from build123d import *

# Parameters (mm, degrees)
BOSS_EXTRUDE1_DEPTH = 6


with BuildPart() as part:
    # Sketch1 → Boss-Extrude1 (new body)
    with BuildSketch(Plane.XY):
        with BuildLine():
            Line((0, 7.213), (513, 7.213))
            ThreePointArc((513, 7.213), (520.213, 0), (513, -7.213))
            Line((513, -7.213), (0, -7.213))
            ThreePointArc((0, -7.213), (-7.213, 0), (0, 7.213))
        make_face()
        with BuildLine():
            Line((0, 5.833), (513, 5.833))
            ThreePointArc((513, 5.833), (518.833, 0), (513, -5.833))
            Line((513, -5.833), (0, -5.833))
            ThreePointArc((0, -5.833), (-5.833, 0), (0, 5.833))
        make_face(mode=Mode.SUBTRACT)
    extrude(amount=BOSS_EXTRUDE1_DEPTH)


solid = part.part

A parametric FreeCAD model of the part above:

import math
import FreeCAD as App
import Part
import Sketcher

V = App.Vector

doc = App.newDocument("Part")
body = doc.addObject("PartDesign::Body", "Body")

sketch1 = doc.addObject("Sketcher::SketchObject", "Sketch")
body.addObject(sketch1)
sketch1.AttachmentSupport = (doc.XY_Plane, [""])
sketch1.MapMode = "FlatFace"
sketch1.addGeometry(Part.LineSegment(V(513, 7, 0), V(0, 7, 0)), False)
sketch1.addGeometry(Part.ArcOfCircle(Part.Circle(V(0, 0, 0), V(0, 0, 1), 7), math.radians(90), math.radians(270)), False)
sketch1.addGeometry(Part.LineSegment(V(0, -7, 0), V(513, -7, 0)), False)
sketch1.addGeometry(Part.ArcOfCircle(Part.Circle(V(513, 0, 0), V(0, 0, 1), 7), math.radians(-90), math.radians(90)), False)
sketch1.addGeometry(Part.LineSegment(V(0, 6, 0), V(513, 6, 0)), False)
sketch1.addGeometry(Part.ArcOfCircle(Part.Circle(V(513, 0, 0), V(0, 0, 1), 6), math.radians(-90), math.radians(90)), False)
sketch1.addGeometry(Part.LineSegment(V(513, -6, 0), V(0, -6, 0)), False)
sketch1.addGeometry(Part.ArcOfCircle(Part.Circle(V(0, 0, 0), V(0, 0, 1), 6), math.radians(90), math.radians(270)), False)
sketch1.addConstraint(Sketcher.Constraint("Tangent", 0, 2, 1, 1))
sketch1.addConstraint(Sketcher.Constraint("Tangent", 1, 2, 2, 1))
sketch1.addConstraint(Sketcher.Constraint("Tangent", 2, 2, 3, 1))
sketch1.addConstraint(Sketcher.Constraint("Tangent", 3, 2, 0, 1))
sketch1.addConstraint(Sketcher.Constraint("Tangent", 4, 2, 5, 2))
sketch1.addConstraint(Sketcher.Constraint("Tangent", 5, 1, 6, 1))
sketch1.addConstraint(Sketcher.Constraint("Tangent", 6, 2, 7, 2))
sketch1.addConstraint(Sketcher.Constraint("Tangent", 7, 1, 4, 1))
sketch1.addConstraint(Sketcher.Constraint("Horizontal", 0))
sketch1.addConstraint(Sketcher.Constraint("Horizontal", 2))
sketch1.addConstraint(Sketcher.Constraint("Horizontal", 4))
sketch1.addConstraint(Sketcher.Constraint("Horizontal", 6))
sketch1.addConstraint(Sketcher.Constraint("Coincident", 1, 3, -1, 1))
sketch1.addConstraint(Sketcher.Constraint("Coincident", 7, 3, -1, 1))
sketch1.addConstraint(Sketcher.Constraint("Vertical", 5, 3, 2, 2))
sketch1.addConstraint(Sketcher.Constraint("DistanceX", 0, 2, 0, 1, 513.0))
sketch1.addConstraint(Sketcher.Constraint("Radius", 1, 7.213))
sketch1.addConstraint(Sketcher.Constraint("Radius", 5, 5.833))
pad1 = doc.addObject("PartDesign::Pad", "Pad")
body.addObject(pad1)
pad1.Profile = sketch1
pad1.Length = 6

doc.recompute()
